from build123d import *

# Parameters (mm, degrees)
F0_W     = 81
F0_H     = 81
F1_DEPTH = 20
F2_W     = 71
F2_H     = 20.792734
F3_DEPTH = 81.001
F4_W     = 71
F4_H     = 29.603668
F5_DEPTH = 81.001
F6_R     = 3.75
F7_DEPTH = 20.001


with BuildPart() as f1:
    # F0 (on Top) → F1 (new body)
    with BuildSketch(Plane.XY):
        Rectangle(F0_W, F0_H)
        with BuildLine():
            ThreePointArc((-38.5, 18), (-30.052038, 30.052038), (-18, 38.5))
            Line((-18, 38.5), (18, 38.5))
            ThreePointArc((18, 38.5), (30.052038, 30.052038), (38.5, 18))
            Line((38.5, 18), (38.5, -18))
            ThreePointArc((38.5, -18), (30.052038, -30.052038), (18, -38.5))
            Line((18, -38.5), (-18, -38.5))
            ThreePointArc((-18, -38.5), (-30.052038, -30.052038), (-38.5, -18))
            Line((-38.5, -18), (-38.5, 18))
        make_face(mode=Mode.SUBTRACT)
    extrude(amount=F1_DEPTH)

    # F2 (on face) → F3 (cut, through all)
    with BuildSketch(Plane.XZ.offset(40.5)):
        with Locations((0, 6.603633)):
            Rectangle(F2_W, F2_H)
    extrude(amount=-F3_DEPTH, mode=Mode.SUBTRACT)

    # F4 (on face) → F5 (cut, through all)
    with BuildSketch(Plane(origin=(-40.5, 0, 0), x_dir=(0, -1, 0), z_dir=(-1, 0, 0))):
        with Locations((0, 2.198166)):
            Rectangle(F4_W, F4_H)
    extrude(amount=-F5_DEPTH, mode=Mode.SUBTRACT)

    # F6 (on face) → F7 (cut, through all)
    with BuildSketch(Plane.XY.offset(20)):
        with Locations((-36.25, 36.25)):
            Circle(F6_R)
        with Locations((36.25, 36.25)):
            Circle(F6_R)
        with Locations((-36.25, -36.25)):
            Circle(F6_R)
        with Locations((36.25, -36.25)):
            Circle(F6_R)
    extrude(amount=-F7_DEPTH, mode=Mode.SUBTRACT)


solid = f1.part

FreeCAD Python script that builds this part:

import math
import FreeCAD as App
import Part
import Sketcher
Q = App.Units.Quantity

doc = App.newDocument("Part")
body = doc.addObject("PartDesign::Body", "Body")

sketch1 = body.newObject("Sketcher::SketchObject", "Sketch")
sketch1.AttachmentSupport = (doc.getObject("XY_Plane"), [""])
sketch1.MapMode = "FlatFace"
sketch1.addGeometry([
    Part.LineSegment(App.Vector(-40.5, 40.5, 0), App.Vector(-40.5, -40.5, 0)),
    Part.LineSegment(App.Vector(-40.5, -40.5, 0), App.Vector(40.5, -40.5, 0)),
    Part.LineSegment(App.Vector(40.5, -40.5, 0), App.Vector(40.5, 40.5, 0)),
    Part.LineSegment(App.Vector(40.5, 40.5, 0), App.Vector(-40.5, 40.5, 0)),
    Part.LineSegment(App.Vector(-38.5, -18, 0), App.Vector(-38.5, 18, 0)),
    Part.ArcOfCircle(Part.Circle(App.Vector(0.000003, -0.000003, 0), App.Vector(0, 0, 1), 42.500004), math.radians(115.057618), math.radians(154.942382)),
    Part.LineSegment(App.Vector(-18, 38.5, 0), App.Vector(18, 38.5, 0)),
    Part.ArcOfCircle(Part.Circle(App.Vector(-0.000003, -0.000003, 0), App.Vector(0, 0, 1), 42.500004), math.radians(25.057618), math.radians(64.942382)),
    Part.LineSegment(App.Vector(38.5, 18, 0), App.Vector(38.5, -18, 0)),
    Part.ArcOfCircle(Part.Circle(App.Vector(-0.000003, 0.000003, 0), App.Vector(0, 0, 1), 42.500004), math.radians(-64.942382), math.radians(-25.057618)),
    Part.LineSegment(App.Vector(18, -38.5, 0), App.Vector(-18, -38.5, 0)),
    Part.ArcOfCircle(Part.Circle(App.Vector(0.000003, 0.000003, 0), App.Vector(0, 0, 1), 42.500004), math.radians(-154.942382), math.radians(-115.057618)),
], False)
sketch1.addConstraint([
    Sketcher.Constraint("Coincident", 0, 2, 1, 1),
    Sketcher.Constraint("Coincident", 1, 2, 2, 1),
    Sketcher.Constraint("Coincident", 2, 2, 3, 1),
    Sketcher.Constraint("Coincident", 3, 2, 0, 1),
    Sketcher.Constraint("Coincident", 4, 2, 5, 2),
    Sketcher.Constraint("Coincident", 5, 1, 6, 1),
    Sketcher.Constraint("Coincident", 6, 2, 7, 2),
    Sketcher.Constraint("Coincident", 7, 1, 8, 1),
    Sketcher.Constraint("Coincident", 8, 2, 9, 2),
    Sketcher.Constraint("Coincident", 9, 1, 10, 1),
    Sketcher.Constraint("Coincident", 10, 2, 11, 2),
    Sketcher.Constraint("Coincident", 11, 1, 4, 1),
    Sketcher.Constraint("Vertical", 0),
    Sketcher.Constraint("Horizontal", 1),
    Sketcher.Constraint("Vertical", 2),
    Sketcher.Constraint("Horizontal", 3),
    Sketcher.Constraint("Vertical", 4),
    Sketcher.Constraint("Horizontal", 6),
    Sketcher.Constraint("Vertical", 8),
    Sketcher.Constraint("Horizontal", 10),
    Sketcher.Constraint("Coincident", 5, 3, -1, 1),
    Sketcher.Constraint("Coincident", 7, 3, -1, 1),
    Sketcher.Constraint("Coincident", 9, 3, -1, 1),
    Sketcher.Constraint("Coincident", 11, 3, -1, 1),
    Sketcher.Constraint("Equal", 5, 7),
    Sketcher.Constraint("Equal", 7, 9),
    Sketcher.Constraint("Equal", 9, 11),
    Sketcher.Constraint("Symmetric", 0, 2, 2, 2, -1, 1),
    Sketcher.Constraint("Horizontal", 4, 2, 7, 1),
    Sketcher.Constraint("Vertical", 6, 2, 9, 1),
    Sketcher.Constraint("Equal", 3, 0),
    Sketcher.Constraint("Equal", 10, 4),
    Sketcher.Constraint("DistanceX", 1, 1, 1, 2, Q("81 mm")),
    Sketcher.Constraint("DistanceX", 6, 1, 6, 2, Q("36 mm")),
    Sketcher.Constraint("DistanceX", 3, 2, 4, 2, Q("2 mm")),
])
pad1 = body.newObject("PartDesign::Pad", "Pad")
pad1.Profile = sketch1
pad1.Length = 20

sketch2 = body.newObject("Sketcher::SketchObject", "Sketch001")
sketch2.AttachmentSupport = (doc.getObject("XZ_Plane"), [""])
sketch2.MapMode = "FlatFace"
sketch2.AttachmentOffset = App.Placement(App.Vector(0, 0, 40.5), App.Rotation())
sketch2.addGeometry([
    Part.LineSegment(App.Vector(-35.5, 17, 0), App.Vector(-35.5, -3.792734, 0)),
    Part.LineSegment(App.Vector(-35.5, -3.792734, 0), App.Vector(35.5, -3.792734, 0)),
    Part.LineSegment(App.Vector(35.5, -3.792734, 0), App.Vector(35.5, 17, 0)),
    Part.LineSegment(App.Vector(35.5, 17, 0), App.Vector(-35.5, 17, 0)),
], False)
sketch2.addConstraint([
    Sketcher.Constraint("Coincident", 0, 2, 1, 1),
    Sketcher.Constraint("Coincident", 1, 2, 2, 1),
    Sketcher.Constraint("Coincident", 2, 2, 3, 1),
    Sketcher.Constraint("Coincident", 3, 2, 0, 1),
    Sketcher.Constraint("Vertical", 0),
    Sketcher.Constraint("Horizontal", 1),
    Sketcher.Constraint("Vertical", 2),
    Sketcher.Constraint("Horizontal", 3),
    Sketcher.Constraint("DistanceX", 1, 1, 1, 2, Q("71 mm")),
    Sketcher.Constraint("DistanceY", -1, 1, 2, 2, Q("17 mm")),
    Sketcher.Constraint("DistanceX", 0, 2, -1, 1, Q("35.5 mm")),
    Sketcher.Constraint("DistanceY", 0, 2, 0, 1, Q("20.792734 mm")),
])
pocket1 = body.newObject("PartDesign::Pocket", "Pocket")
pocket1.Profile = sketch2
pocket1.Type = "ThroughAll"

sketch3 = body.newObject("Sketcher::SketchObject", "Sketch002")
sketch3.AttachmentSupport = (doc.getObject("YZ_Plane"), [""])
sketch3.MapMode = "FlatFace"
sketch3.AttachmentOffset = App.Placement(App.Vector(0, 0, -40.5), App.Rotation())
sketch3.addGeometry([
    Part.LineSegment(App.Vector(35.5, 17, 0), App.Vector(35.5, -12.603668, 0)),
    Part.LineSegment(App.Vector(35.5, -12.603668, 0), App.Vector(-35.5, -12.603668, 0)),
    Part.LineSegment(App.Vector(-35.5, -12.603668, 0), App.Vector(-35.5, 17, 0)),
    Part.LineSegment(App.Vector(-35.5, 17, 0), App.Vector(35.5, 17, 0)),
], False)
sketch3.addConstraint([
    Sketcher.Constraint("Coincident", 0, 2, 1, 1),
    Sketcher.Constraint("Coincident", 1, 2, 2, 1),
    Sketcher.Constraint("Coincident", 2, 2, 3, 1),
    Sketcher.Constraint("Coincident", 3, 2, 0, 1),
    Sketcher.Constraint("Vertical", 0),
    Sketcher.Constraint("Horizontal", 1),
    Sketcher.Constraint("Vertical", 2),
    Sketcher.Constraint("Horizontal", 3),
    Sketcher.Constraint("DistanceX", 1, 2, 1, 1, Q("71 mm")),
    Sketcher.Constraint("DistanceY", -1, 1, 2, 2, Q("17 mm")),
    Sketcher.Constraint("DistanceX", -1, 1, 0, 2, Q("35.5 mm")),
    Sketcher.Constraint("DistanceY", 0, 2, 0, 1, Q("29.603668 mm")),
])
pocket2 = body.newObject("PartDesign::Pocket", "Pocket001")
pocket2.Profile = sketch3
pocket2.Type = "ThroughAll"
pocket2.Reversed = True

sketch4 = body.newObject("Sketcher::SketchObject", "Sketch003")
sketch4.AttachmentSupport = (doc.getObject("XY_Plane"), [""])
sketch4.MapMode = "FlatFace"
sketch4.AttachmentOffset = App.Placement(App.Vector(0, 0, 20), App.Rotation())
sketch4.addGeometry([
    Part.Circle(App.Vector(-36.25, 36.25, 0), App.Vector(0, 0, 1), 3.75),
    Part.Circle(App.Vector(36.25, 36.25, 0), App.Vector(0, 0, 1), 3.75),
    Part.Circle(App.Vector(-36.25, -36.25, 0), App.Vector(0, 0, 1), 3.75),
    Part.Circle(App.Vector(36.25, -36.25, 0), App.Vector(0, 0, 1), 3.75),
], False)
sketch4.addConstraint([
    Sketcher.Constraint("Equal", 0, 1),
    Sketcher.Constraint("Equal", 1, 2),
    Sketcher.Constraint("Equal", 2, 3),
    Sketcher.Constraint("Symmetric", 1, 3, 2, 3, -1, 1),
    Sketcher.Constraint("Symmetric", 0, 3, 3, 3, -1, 1),
    Sketcher.Constraint("Symmetric", 0, 3, 1, 3, -2),
    Sketcher.Constraint("Diameter", 0, Q("7.5 mm")),
    Sketcher.Constraint("DistanceX", 0, 3, 1, 3, Q("72.5 mm")),
    Sketcher.Constraint("DistanceY", 2, 3, 0, 3, Q("72.5 mm")),
])
pocket3 = body.newObject("PartDesign::Pocket", "Pocket002")
pocket3.Profile = sketch4
pocket3.Type = "ThroughAll"

doc.recompute()
